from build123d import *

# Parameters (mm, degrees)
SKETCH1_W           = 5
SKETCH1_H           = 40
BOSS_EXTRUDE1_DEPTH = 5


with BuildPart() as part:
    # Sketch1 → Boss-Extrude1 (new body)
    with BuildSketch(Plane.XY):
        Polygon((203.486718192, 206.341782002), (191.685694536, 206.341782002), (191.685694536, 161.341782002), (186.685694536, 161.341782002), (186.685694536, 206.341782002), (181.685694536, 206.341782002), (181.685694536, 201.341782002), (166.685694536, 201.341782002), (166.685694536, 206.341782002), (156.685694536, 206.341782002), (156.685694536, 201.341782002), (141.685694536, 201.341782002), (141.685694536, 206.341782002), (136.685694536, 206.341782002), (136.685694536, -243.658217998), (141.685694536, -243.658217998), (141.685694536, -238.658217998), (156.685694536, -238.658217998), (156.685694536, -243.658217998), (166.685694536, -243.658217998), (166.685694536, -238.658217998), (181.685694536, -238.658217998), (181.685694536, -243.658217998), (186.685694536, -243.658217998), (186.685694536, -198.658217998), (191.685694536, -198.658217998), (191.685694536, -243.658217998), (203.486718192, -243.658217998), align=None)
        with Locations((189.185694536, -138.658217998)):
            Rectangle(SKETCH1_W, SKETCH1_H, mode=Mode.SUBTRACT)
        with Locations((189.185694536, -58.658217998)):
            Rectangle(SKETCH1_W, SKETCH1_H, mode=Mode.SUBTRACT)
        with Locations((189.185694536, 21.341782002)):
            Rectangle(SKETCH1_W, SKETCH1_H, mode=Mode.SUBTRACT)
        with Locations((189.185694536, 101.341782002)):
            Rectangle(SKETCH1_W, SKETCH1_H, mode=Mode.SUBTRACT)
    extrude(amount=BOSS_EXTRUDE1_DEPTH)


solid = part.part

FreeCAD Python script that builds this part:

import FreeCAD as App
import Part
import Sketcher

V = App.Vector

doc = App.newDocument("Part")
body = doc.addObject("PartDesign::Body", "Body")

sketch1 = body.newObject("Sketcher::SketchObject", "Sketch")
sketch1.AttachmentSupport = (doc.getObject("XY_Plane"), [""])
sketch1.MapMode = "FlatFace"
sketch1.addGeometry([
    Part.LineSegment(V(203, 206, 0), V(192, 206, 0)),
    Part.LineSegment(V(192, 206, 0), V(192, 161, 0)),
    Part.LineSegment(V(192, 161, 0), V(187, 161, 0)),
    Part.LineSegment(V(187, 161, 0), V(187, 206, 0)),
    Part.LineSegment(V(187, 206, 0), V(182, 206, 0)),
    Part.LineSegment(V(182, 206, 0), V(182, 201, 0)),
    Part.LineSegment(V(182, 201, 0), V(167, 201, 0)),
    Part.LineSegment(V(167, 201, 0), V(167, 206, 0)),
    Part.LineSegment(V(167, 206, 0), V(157, 206, 0)),
    Part.LineSegment(V(157, 206, 0), V(157, 201, 0)),
    Part.LineSegment(V(157, 201, 0), V(142, 201, 0)),
    Part.LineSegment(V(142, 201, 0), V(142, 206, 0)),
    Part.LineSegment(V(142, 206, 0), V(137, 206, 0)),
    Part.LineSegment(V(137, 206, 0), V(137, -244, 0)),
    Part.LineSegment(V(137, -244, 0), V(142, -244, 0)),
    Part.LineSegment(V(142, -244, 0), V(142, -239, 0)),
    Part.LineSegment(V(142, -239, 0), V(157, -239, 0)),
    Part.LineSegment(V(157, -239, 0), V(157, -244, 0)),
    Part.LineSegment(V(157, -244, 0), V(167, -244, 0)),
    Part.LineSegment(V(167, -244, 0), V(167, -239, 0)),
    Part.LineSegment(V(167, -239, 0), V(182, -239, 0)),
    Part.LineSegment(V(182, -239, 0), V(182, -244, 0)),
    Part.LineSegment(V(182, -244, 0), V(187, -244, 0)),
    Part.LineSegment(V(187, -244, 0), V(187, -199, 0)),
    Part.LineSegment(V(187, -199, 0), V(192, -199, 0)),
    Part.LineSegment(V(192, -199, 0), V(192, -244, 0)),
    Part.LineSegment(V(192, -244, 0), V(203, -244, 0)),
    Part.LineSegment(V(203, -244, 0), V(203, 206, 0)),
    Part.LineSegment(V(192, -159, 0), V(187, -159, 0)),
    Part.LineSegment(V(187, -159, 0), V(187, -119, 0)),
    Part.LineSegment(V(187, -119, 0), V(192, -119, 0)),
    Part.LineSegment(V(192, -119, 0), V(192, -159, 0)),
    Part.LineSegment(V(192, -79, 0), V(187, -79, 0)),
    Part.LineSegment(V(187, -79, 0), V(187, -39, 0)),
    Part.LineSegment(V(187, -39, 0), V(192, -39, 0)),
    Part.LineSegment(V(192, -39, 0), V(192, -79, 0)),
    Part.LineSegment(V(192, 1, 0), V(187, 1, 0)),
    Part.LineSegment(V(187, 1, 0), V(187, 41, 0)),
    Part.LineSegment(V(187, 41, 0), V(192, 41, 0)),
    Part.LineSegment(V(192, 41, 0), V(192, 1, 0)),
    Part.LineSegment(V(192, 81, 0), V(187, 81, 0)),
    Part.LineSegment(V(187, 81, 0), V(187, 121, 0)),
    Part.LineSegment(V(187, 121, 0), V(192, 121, 0)),
    Part.LineSegment(V(192, 121, 0), V(192, 81, 0)),
], False)
sketch1.addConstraint([
    Sketcher.Constraint("Coincident", 0, 2, 1, 1),
    Sketcher.Constraint("Coincident", 1, 2, 2, 1),
    Sketcher.Constraint("Coincident", 2, 2, 3, 1),
    Sketcher.Constraint("Coincident", 3, 2, 4, 1),
    Sketcher.Constraint("Coincident", 4, 2, 5, 1),
    Sketcher.Constraint("Coincident", 5, 2, 6, 1),
    Sketcher.Constraint("Coincident", 6, 2, 7, 1),
    Sketcher.Constraint("Coincident", 7, 2, 8, 1),
    Sketcher.Constraint("Coincident", 8, 2, 9, 1),
    Sketcher.Constraint("Coincident", 9, 2, 10, 1),
    Sketcher.Constraint("Coincident", 10, 2, 11, 1),
    Sketcher.Constraint("Coincident", 11, 2, 12, 1),
    Sketcher.Constraint("Coincident", 12, 2, 13, 1),
    Sketcher.Constraint("Coincident", 13, 2, 14, 1),
    Sketcher.Constraint("Coincident", 14, 2, 15, 1),
    Sketcher.Constraint("Coincident", 15, 2, 16, 1),
    Sketcher.Constraint("Coincident", 16, 2, 17, 1),
    Sketcher.Constraint("Coincident", 17, 2, 18, 1),
    Sketcher.Constraint("Coincident", 18, 2, 19, 1),
    Sketcher.Constraint("Coincident", 19, 2, 20, 1),
    Sketcher.Constraint("Coincident", 20, 2, 21, 1),
    Sketcher.Constraint("Coincident", 21, 2, 22, 1),
    Sketcher.Constraint("Coincident", 22, 2, 23, 1),
    Sketcher.Constraint("Coincident", 23, 2, 24, 1),
    Sketcher.Constraint("Coincident", 24, 2, 25, 1),
    Sketcher.Constraint("Coincident", 25, 2, 26, 1),
    Sketcher.Constraint("Coincident", 26, 2, 27, 1),
    Sketcher.Constraint("Coincident", 27, 2, 0, 1),
    Sketcher.Constraint("Coincident", 28, 2, 29, 1),
    Sketcher.Constraint("Coincident", 29, 2, 30, 1),
    Sketcher.Constraint("Coincident", 30, 2, 31, 1),
    Sketcher.Constraint("Coincident", 31, 2, 28, 1),
    Sketcher.Constraint("Coincident", 32, 2, 33, 1),
    Sketcher.Constraint("Coincident", 33, 2, 34, 1),
    Sketcher.Constraint("Coincident", 34, 2, 35, 1),
    Sketcher.Constraint("Coincident", 35, 2, 32, 1),
    Sketcher.Constraint("Coincident", 36, 2, 37, 1),
    Sketcher.Constraint("Coincident", 37, 2, 38, 1),
    Sketcher.Constraint("Coincident", 38, 2, 39, 1),
    Sketcher.Constraint("Coincident", 39, 2, 36, 1),
    Sketcher.Constraint("Coincident", 40, 2, 41, 1),
    Sketcher.Constraint("Coincident", 41, 2, 42, 1),
    Sketcher.Constraint("Coincident", 42, 2, 43, 1),
    Sketcher.Constraint("Coincident", 43, 2, 40, 1),
    Sketcher.Constraint("Horizontal", 0),
    Sketcher.Constraint("Vertical", 1),
    Sketcher.Constraint("Horizontal", 2),
    Sketcher.Constraint("Vertical", 3),
    Sketcher.Constraint("Horizontal", 4),
    Sketcher.Constraint("Vertical", 5),
    Sketcher.Constraint("Horizontal", 6),
    Sketcher.Constraint("Vertical", 7),
    Sketcher.Constraint("Horizontal", 8),
    Sketcher.Constraint("Vertical", 9),
    Sketcher.Constraint("Horizontal", 10),
    Sketcher.Constraint("Vertical", 11),
    Sketcher.Constraint("Horizontal", 12),
    Sketcher.Constraint("Vertical", 13),
    Sketcher.Constraint("Horizontal", 14),
    Sketcher.Constraint("Vertical", 15),
    Sketcher.Constraint("Horizontal", 16),
    Sketcher.Constraint("Vertical", 17),
    Sketcher.Constraint("Horizontal", 18),
    Sketcher.Constraint("Vertical", 19),
    Sketcher.Constraint("Horizontal", 20),
    Sketcher.Constraint("Vertical", 21),
    Sketcher.Constraint("Horizontal", 22),
    Sketcher.Constraint("Vertical", 23),
    Sketcher.Constraint("Horizontal", 24),
    Sketcher.Constraint("Vertical", 25),
    Sketcher.Constraint("Horizontal", 26),
    Sketcher.Constraint("Vertical", 27),
    Sketcher.Constraint("Horizontal", 28),
    Sketcher.Constraint("Vertical", 29),
    Sketcher.Constraint("Horizontal", 30),
    Sketcher.Constraint("Vertical", 31),
    Sketcher.Constraint("Horizontal", 32),
    Sketcher.Constraint("Vertical", 33),
    Sketcher.Constraint("Horizontal", 34),
    Sketcher.Constraint("Vertical", 35),
    Sketcher.Constraint("Horizontal", 36),
    Sketcher.Constraint("Vertical", 37),
    Sketcher.Constraint("Horizontal", 38),
    Sketcher.Constraint("Vertical", 39),
    Sketcher.Constraint("Horizontal", 40),
    Sketcher.Constraint("Vertical", 41),
    Sketcher.Constraint("Horizontal", 42),
    Sketcher.Constraint("Vertical", 43),
    Sketcher.Constraint("Horizontal", 0, 2, 3, 2),
    Sketcher.Constraint("Horizontal", 4, 2, 7, 2),
    Sketcher.Constraint("Horizontal", 6, 2, 9, 2),
    Sketcher.Constraint("Horizontal", 8, 2, 11, 2),
    Sketcher.Constraint("Horizontal", 14, 2, 17, 2),
    Sketcher.Constraint("Horizontal", 16, 2, 19, 2),
    Sketcher.Constraint("Horizontal", 18, 2, 21, 2),
    Sketcher.Constraint("Horizontal", 22, 2, 25, 2),
    Sketcher.Constraint("Vertical", 11, 2, 14, 2),
    Sketcher.Constraint("Vertical", 9, 2, 16, 2),
    Sketcher.Constraint("Vertical", 7, 2, 18, 2),
    Sketcher.Constraint("Vertical", 5, 2, 20, 2),
    Sketcher.Constraint("Vertical", 3, 2, 22, 2),
    Sketcher.Constraint("Vertical", 1, 2, 24, 2),
    Sketcher.Constraint("Vertical", 23, 2, 28, 2),
    Sketcher.Constraint("Vertical", 25, 2, 30, 2),
    Sketcher.Constraint("Vertical", 29, 2, 32, 2),
    Sketcher.Constraint("Vertical", 31, 2, 34, 2),
    Sketcher.Constraint("Vertical", 33, 2, 36, 2),
    Sketcher.Constraint("Vertical", 35, 2, 38, 2),
    Sketcher.Constraint("Vertical", 37, 2, 40, 2),
    Sketcher.Constraint("Vertical", 39, 2, 42, 2),
    Sketcher.Constraint("Equal", 2, 4),
    Sketcher.Constraint("Equal", 6, 10),
    Sketcher.Constraint("Equal", 4, 12),
    Sketcher.Constraint("Equal", 42, 5),
    Sketcher.Constraint("Equal", 11, 15),
    Sketcher.Constraint("Equal", 3, 23),
    Sketcher.Constraint("Equal", 31, 33),
    Sketcher.Constraint("Equal", 35, 37),
    Sketcher.Constraint("Equal", 39, 41),
    Sketcher.Constraint("DistanceX", 2, 2, 2, 1, 5.0),
    Sketcher.Constraint("DistanceX", 6, 2, 6, 1, 15.0),
    Sketcher.Constraint("DistanceX", 8, 2, 8, 1, 10.0),
    Sketcher.Constraint("DistanceY", 1, 2, 1, 1, 45.0),
    Sketcher.Constraint("DistanceY", 13, 2, 13, 1, 450.0),
    Sketcher.Constraint("DistanceY", 29, 1, 29, 2, 40.0),
    Sketcher.Constraint("DistanceY", 23, 2, 28, 2, 40.0),
    Sketcher.Constraint("DistanceY", 29, 2, 32, 2, 40.0),
    Sketcher.Constraint("DistanceY", 33, 2, 36, 2, 40.0),
    Sketcher.Constraint("DistanceY", 37, 2, 40, 2, 40.0),
    Sketcher.Constraint("DistanceX", 0, 2, 0, 1, 11.801024),
    Sketcher.Constraint("DistanceX", -1, 1, 26, 2, 203.486718),
    Sketcher.Constraint("DistanceY", -1, 1, 0, 2, 206.341782),
])
pad1 = body.newObject("PartDesign::Pad", "Pad")
pad1.Profile = sketch1
pad1.Length = 5

doc.recompute()
